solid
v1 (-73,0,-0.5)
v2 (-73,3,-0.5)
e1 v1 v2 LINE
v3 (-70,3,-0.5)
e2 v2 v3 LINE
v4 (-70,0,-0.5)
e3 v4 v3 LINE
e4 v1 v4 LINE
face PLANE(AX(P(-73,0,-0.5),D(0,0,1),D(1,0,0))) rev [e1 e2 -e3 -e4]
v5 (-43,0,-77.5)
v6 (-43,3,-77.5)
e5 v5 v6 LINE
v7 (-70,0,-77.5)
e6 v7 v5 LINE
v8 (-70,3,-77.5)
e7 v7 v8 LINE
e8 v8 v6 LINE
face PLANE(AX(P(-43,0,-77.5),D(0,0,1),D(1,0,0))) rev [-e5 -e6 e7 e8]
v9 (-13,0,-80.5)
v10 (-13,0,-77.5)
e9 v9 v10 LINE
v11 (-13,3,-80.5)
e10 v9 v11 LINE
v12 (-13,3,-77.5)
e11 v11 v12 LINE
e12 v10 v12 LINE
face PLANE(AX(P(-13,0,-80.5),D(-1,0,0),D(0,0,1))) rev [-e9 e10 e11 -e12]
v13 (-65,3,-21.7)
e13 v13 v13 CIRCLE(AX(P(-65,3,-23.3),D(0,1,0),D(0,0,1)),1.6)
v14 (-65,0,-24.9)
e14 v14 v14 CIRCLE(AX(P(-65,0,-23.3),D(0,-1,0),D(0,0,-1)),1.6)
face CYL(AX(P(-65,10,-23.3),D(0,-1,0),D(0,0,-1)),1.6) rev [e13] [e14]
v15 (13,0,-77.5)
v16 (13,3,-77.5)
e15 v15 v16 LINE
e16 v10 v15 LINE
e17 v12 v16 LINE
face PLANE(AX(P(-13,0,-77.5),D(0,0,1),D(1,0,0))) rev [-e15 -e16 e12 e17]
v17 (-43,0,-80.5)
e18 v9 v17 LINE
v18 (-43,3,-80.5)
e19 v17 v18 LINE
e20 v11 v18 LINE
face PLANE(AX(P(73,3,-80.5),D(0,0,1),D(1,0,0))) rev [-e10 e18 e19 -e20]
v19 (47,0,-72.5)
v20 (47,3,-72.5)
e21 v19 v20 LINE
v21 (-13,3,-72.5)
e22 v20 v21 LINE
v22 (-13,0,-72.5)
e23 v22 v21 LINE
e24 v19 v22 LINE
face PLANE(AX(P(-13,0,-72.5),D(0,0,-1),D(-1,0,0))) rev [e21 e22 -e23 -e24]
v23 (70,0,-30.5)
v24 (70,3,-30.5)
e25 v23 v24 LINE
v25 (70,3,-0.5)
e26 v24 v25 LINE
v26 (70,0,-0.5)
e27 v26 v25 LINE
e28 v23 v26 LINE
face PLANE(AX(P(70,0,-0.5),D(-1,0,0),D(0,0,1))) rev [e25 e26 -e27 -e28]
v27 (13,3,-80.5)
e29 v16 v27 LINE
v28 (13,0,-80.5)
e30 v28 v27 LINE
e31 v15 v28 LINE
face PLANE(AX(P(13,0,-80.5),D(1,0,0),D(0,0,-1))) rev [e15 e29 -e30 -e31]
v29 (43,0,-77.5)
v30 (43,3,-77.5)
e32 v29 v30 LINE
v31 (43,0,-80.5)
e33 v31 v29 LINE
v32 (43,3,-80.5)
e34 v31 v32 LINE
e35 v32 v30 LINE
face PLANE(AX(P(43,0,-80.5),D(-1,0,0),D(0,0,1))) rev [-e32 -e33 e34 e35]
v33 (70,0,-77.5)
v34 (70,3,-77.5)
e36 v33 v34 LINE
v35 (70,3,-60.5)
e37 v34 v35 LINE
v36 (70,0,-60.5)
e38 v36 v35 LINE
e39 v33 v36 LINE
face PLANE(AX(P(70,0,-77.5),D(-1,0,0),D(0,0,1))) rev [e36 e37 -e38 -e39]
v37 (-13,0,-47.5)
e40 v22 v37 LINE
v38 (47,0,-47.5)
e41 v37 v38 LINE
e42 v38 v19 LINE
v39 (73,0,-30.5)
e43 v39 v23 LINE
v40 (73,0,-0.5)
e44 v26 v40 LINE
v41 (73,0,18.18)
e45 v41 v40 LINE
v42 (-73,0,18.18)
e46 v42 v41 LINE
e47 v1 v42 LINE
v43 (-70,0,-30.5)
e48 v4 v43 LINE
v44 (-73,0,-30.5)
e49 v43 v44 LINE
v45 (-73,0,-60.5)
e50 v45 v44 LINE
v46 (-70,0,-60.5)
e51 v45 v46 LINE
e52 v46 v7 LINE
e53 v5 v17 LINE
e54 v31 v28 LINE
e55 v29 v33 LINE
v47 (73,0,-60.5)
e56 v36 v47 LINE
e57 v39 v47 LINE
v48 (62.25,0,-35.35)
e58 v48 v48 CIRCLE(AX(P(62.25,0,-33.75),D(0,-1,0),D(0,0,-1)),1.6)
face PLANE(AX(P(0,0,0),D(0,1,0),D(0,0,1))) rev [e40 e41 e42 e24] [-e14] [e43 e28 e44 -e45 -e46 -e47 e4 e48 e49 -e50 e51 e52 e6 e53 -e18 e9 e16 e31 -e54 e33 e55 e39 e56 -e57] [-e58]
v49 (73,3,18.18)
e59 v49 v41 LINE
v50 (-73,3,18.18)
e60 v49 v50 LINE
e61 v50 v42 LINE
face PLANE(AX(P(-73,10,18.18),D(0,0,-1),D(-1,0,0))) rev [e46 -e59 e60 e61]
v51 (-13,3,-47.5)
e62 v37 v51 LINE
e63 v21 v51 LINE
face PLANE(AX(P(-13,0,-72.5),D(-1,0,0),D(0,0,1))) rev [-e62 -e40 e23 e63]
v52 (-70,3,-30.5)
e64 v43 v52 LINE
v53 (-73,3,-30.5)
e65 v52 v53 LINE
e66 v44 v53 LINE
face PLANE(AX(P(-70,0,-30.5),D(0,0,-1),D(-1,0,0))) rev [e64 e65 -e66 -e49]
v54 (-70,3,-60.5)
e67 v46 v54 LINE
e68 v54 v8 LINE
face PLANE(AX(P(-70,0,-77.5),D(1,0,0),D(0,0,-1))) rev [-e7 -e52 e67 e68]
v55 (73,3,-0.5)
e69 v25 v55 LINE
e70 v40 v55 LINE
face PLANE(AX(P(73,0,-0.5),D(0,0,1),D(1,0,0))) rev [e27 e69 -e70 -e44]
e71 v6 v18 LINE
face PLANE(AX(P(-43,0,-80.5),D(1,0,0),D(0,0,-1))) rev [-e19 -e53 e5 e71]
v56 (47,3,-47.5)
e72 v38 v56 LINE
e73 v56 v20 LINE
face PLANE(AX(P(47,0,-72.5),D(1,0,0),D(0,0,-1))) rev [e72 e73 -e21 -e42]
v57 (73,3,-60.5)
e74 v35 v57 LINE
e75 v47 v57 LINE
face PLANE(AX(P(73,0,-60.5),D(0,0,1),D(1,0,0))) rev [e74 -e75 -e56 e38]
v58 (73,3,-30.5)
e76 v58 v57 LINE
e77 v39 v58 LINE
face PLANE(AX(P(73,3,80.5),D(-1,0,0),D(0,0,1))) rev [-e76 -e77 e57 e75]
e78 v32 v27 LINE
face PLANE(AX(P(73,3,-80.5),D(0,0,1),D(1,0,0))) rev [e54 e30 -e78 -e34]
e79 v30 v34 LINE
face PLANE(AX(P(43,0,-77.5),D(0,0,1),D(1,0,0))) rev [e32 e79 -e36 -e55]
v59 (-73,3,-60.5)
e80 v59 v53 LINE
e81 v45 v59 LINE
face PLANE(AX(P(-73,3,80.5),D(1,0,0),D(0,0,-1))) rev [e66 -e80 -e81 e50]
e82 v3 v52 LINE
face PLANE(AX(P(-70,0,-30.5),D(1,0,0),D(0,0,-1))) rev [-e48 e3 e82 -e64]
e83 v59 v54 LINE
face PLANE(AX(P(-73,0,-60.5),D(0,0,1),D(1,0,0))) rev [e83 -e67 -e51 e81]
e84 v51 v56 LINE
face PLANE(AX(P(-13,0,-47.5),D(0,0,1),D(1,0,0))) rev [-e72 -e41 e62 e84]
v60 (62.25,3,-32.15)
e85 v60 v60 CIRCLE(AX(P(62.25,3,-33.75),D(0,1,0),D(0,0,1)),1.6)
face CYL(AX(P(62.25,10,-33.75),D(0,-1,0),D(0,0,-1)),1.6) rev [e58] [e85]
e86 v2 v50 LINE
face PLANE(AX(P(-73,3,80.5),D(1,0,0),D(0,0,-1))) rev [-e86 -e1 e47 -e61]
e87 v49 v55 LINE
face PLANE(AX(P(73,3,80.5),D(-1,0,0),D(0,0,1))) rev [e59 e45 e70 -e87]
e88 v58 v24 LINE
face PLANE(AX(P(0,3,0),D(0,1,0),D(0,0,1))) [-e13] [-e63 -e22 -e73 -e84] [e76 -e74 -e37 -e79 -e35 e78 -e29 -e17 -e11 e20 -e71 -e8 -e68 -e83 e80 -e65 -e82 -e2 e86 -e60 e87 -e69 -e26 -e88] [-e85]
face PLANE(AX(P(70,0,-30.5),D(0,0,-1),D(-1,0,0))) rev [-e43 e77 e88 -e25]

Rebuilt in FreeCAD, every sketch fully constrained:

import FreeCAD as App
import Part
import Sketcher

V = App.Vector


def add_polygon(sketch, points):
    """Adds a closed chain of lines whose ends are joined by coincident constraints."""
    first, n = sketch.GeometryCount, len(points)
    for a, b in zip(points, points[1:] + points[:1]):
        sketch.addGeometry(Part.LineSegment(App.Vector(*a, 0), App.Vector(*b, 0)), False)
    for i in range(n):
        sketch.addConstraint(Sketcher.Constraint("Coincident", first + i, 2, first + (i + 1) % n, 1))

doc = App.newDocument("Part")
body = doc.addObject("PartDesign::Body", "Body")

# Sketch on XZ plane
sketch1 = doc.addObject("Sketcher::SketchObject", "Sketch")
body.addObject(sketch1)
sketch1.AttachmentSupport = (doc.XZ_Plane, [""])
sketch1.MapMode = "FlatFace"
add_polygon(sketch1, [(-73, -80), (-73, 80), (73, 80), (73, -80)])  # lines 0-3
sketch1.addConstraint([
    Sketcher.Constraint("Vertical", 0),
    Sketcher.Constraint("Horizontal", 1),
    Sketcher.Constraint("Vertical", 2),
    Sketcher.Constraint("Horizontal", 3),
    Sketcher.Constraint("Symmetric", 0, 2, 2, 2, -1, 1),
    Sketcher.Constraint("DistanceX", 1, 1, 1, 2, 146.0),
    Sketcher.Constraint("DistanceY", 0, 1, 0, 2, 161.0),
])
pad1 = doc.addObject("PartDesign::Pad", "Pad")
body.addObject(pad1)
pad1.Profile = sketch1
pad1.Length = 3
pad1.Reversed = True

# Sketch on XZ plane
sketch2 = doc.addObject("Sketcher::SketchObject", "Sketch001")
body.addObject(sketch2)
sketch2.AttachmentSupport = (doc.XZ_Plane, [""])
sketch2.MapMode = "FlatFace"
sketch2.AttachmentOffset = App.Placement(V(0, 0, -3), App.Rotation())
add_polygon(sketch2, [(-13, -80.5), (-13, -77.5), (13, -77.5), (13, -80.5)])  # lines 0-3
add_polygon(sketch2, [(-73, -30.5), (-73, -0.5), (-70, -0.5), (-70, -30.5)])  # lines 4-7
add_polygon(sketch2, [(-73, -80.5), (-73, -60.5), (-70, -60.5), (-70, -77.5), (-43, -77.5), (-43, -80.5)])  # lines 8-13
add_polygon(sketch2, [(73, -60.5), (73, -80.5), (43, -80.5), (43, -77.5), (70, -77.5), (70, -60.5)])  # lines 14-19
add_polygon(sketch2, [(70, -30.5), (70, -0.5), (73, -0.5), (73, -30.5)])  # lines 20-23
add_polygon(sketch2, [(-73, 29.5), (-73, 59.5), (-70, 59.5), (-70, 29.5)])  # lines 24-27
add_polygon(sketch2, [(-70, 79.5), (-73, 79.5), (-73, 80.5), (-43, 80.5), (-43, 77.5), (-70, 77.5)])  # lines 28-33
add_polygon(sketch2, [(70, 29.5), (70, 59.5), (73, 59.5), (73, 29.5)])  # lines 34-37
add_polygon(sketch2, [(73, 79.5), (70, 79.5), (70, 77.5), (43, 77.5), (43, 80.5), (73, 80.5)])  # lines 38-43
add_polygon(sketch2, [(-13, 77.5), (-13, 80.5), (13, 80.5), (13, 77.5)])  # lines 44-47
add_polygon(sketch2, [(-13, -72.5), (-13, -47.5), (47, -47.5), (47, -72.5)])  # lines 48-51
sketch2.addConstraint([
    Sketcher.Constraint("Vertical", 0),
    Sketcher.Constraint("Horizontal", 1),
    Sketcher.Constraint("Vertical", 2),
    Sketcher.Constraint("Horizontal", 3),
    Sketcher.Constraint("Vertical", 4),
    Sketcher.Constraint("Horizontal", 5),
    Sketcher.Constraint("Vertical", 6),
    Sketcher.Constraint("Horizontal", 7),
    Sketcher.Constraint("Vertical", 8),
    Sketcher.Constraint("Horizontal", 9),
    Sketcher.Constraint("Vertical", 10),
    Sketcher.Constraint("Horizontal", 11),
    Sketcher.Constraint("Vertical", 12),
    Sketcher.Constraint("Horizontal", 13),
    Sketcher.Constraint("Vertical", 14),
    Sketcher.Constraint("Horizontal", 15),
    Sketcher.Constraint("Vertical", 16),
    Sketcher.Constraint("Horizontal", 17),
    Sketcher.Constraint("Vertical", 18),
    Sketcher.Constraint("Horizontal", 19),
    Sketcher.Constraint("Vertical", 20),
    Sketcher.Constraint("Horizontal", 21),
    Sketcher.Constraint("Vertical", 22),
    Sketcher.Constraint("Horizontal", 23),
    Sketcher.Constraint("Vertical", 24),
    Sketcher.Constraint("Horizontal", 25),
    Sketcher.Constraint("Vertical", 26),
    Sketcher.Constraint("Horizontal", 27),
    Sketcher.Constraint("Horizontal", 28),
    Sketcher.Constraint("Vertical", 29),
    Sketcher.Constraint("Horizontal", 30),
    Sketcher.Constraint("Vertical", 31),
    Sketcher.Constraint("Horizontal", 32),
    Sketcher.Constraint("Vertical", 33),
    Sketcher.Constraint("Vertical", 34),
    Sketcher.Constraint("Horizontal", 35),
    Sketcher.Constraint("Vertical", 36),
    Sketcher.Constraint("Horizontal", 37),
    Sketcher.Constraint("Horizontal", 38),
    Sketcher.Constraint("Vertical", 39),
    Sketcher.Constraint("Horizontal", 40),
    Sketcher.Constraint("Vertical", 41),
    Sketcher.Constraint("Horizontal", 42),
    Sketcher.Constraint("Vertical", 43),
    Sketcher.Constraint("Vertical", 44),
    Sketcher.Constraint("Horizontal", 45),
    Sketcher.Constraint("Vertical", 46),
    Sketcher.Constraint("Horizontal", 47),
    Sketcher.Constraint("Vertical", 48),
    Sketcher.Constraint("Horizontal", 49),
    Sketcher.Constraint("Vertical", 50),
    Sketcher.Constraint("Horizontal", 51),
    Sketcher.Constraint("Symmetric", 14, 2, 29, 2, -1, 1),
    Sketcher.Constraint("Symmetric", 16, 2, 31, 2, -1, 1),
    Sketcher.Constraint("Symmetric", 10, 2, 39, 2, -1, 1),
    Sketcher.Constraint("Symmetric", 12, 2, 41, 2, -1, 1),
    Sketcher.Constraint("Symmetric", 2, 2, 44, 2, -1, 1),
    Sketcher.Constraint("Symmetric", 0, 2, 46, 2, -1, 1),
    Sketcher.Constraint("Symmetric", 13, 2, 14, 2, -2),
    Sketcher.Constraint("Symmetric", 11, 2, 16, 2, -2),
    Sketcher.Constraint("Symmetric", 9, 2, 18, 2, -2),
    Sketcher.Constraint("Symmetric", 5, 2, 20, 2, -2),
    Sketcher.Constraint("Symmetric", 7, 2, 22, 2, -2),
    Sketcher.Constraint("Symmetric", 25, 2, 34, 2, -2),
    Sketcher.Constraint("Symmetric", 27, 2, 36, 2, -2),
    Sketcher.Constraint("Symmetric", 33, 2, 38, 2, -2),
    Sketcher.Constraint("Horizontal", 1, 2, 10, 2),
    Sketcher.Constraint("Horizontal", 3, 2, 12, 2),
    Sketcher.Constraint("Vertical", 7, 2, 8, 2),
    Sketcher.Constraint("Vertical", 6, 2, 9, 2),
    Sketcher.Constraint("Vertical", 13, 2, 24, 2),
    Sketcher.Constraint("Vertical", 10, 2, 25, 2),
    Sketcher.Constraint("Vertical", 36, 2, 42, 2),
    Sketcher.Constraint("Vertical", 3, 2, 44, 2),
    Sketcher.Constraint("Vertical", 47, 2, 48, 2),
    Sketcher.Constraint("Equal", 38, 0),
    Sketcher.Constraint("Equal", 42, 4),
    Sketcher.Constraint("Equal", 22, 24),
    Sketcher.Constraint("DistanceX", 1, 1, 1, 2, 26.0),
    Sketcher.Constraint("DistanceX", 5, 1, 5, 2, 3.0),
    Sketcher.Constraint("DistanceX", 11, 1, 11, 2, 27.0),
    Sketcher.Constraint("DistanceX", 49, 1, 49, 2, 60.0),
    Sketcher.Constraint("DistanceY", 8, 1, 8, 2, 20.0),
    Sketcher.Constraint("DistanceY", 29, 1, 29, 2, 1.0),
    Sketcher.Constraint("DistanceY", 48, 1, 48, 2, 25.0),
    Sketcher.Constraint("DistanceX", 4, 2, -1, 1, 73.0),
    Sketcher.Constraint("DistanceY", 0, 2, 4, 2, 77.0),
    Sketcher.Constraint("DistanceY", 4, 2, 24, 2, 60.0),
    Sketcher.Constraint("DistanceY", 24, 2, 28, 2, 20.0),
    Sketcher.Constraint("DistanceY", 0, 2, 48, 2, 30.0),
])
pocket1 = doc.addObject("PartDesign::Pocket", "Pocket")
body.addObject(pocket1)
pocket1.Profile = sketch2
pocket1.Length = 3
pocket1.Reversed = True

# Sketch on XZ plane
sketch3 = doc.addObject("Sketcher::SketchObject", "Sketch002")
body.addObject(sketch3)
sketch3.AttachmentSupport = (doc.XZ_Plane, [""])
sketch3.MapMode = "FlatFace"
add_polygon(sketch3, [(73, 18), (73, 80), (-73, 80), (-73, 18)])  # lines 0-3
sketch3.addConstraint([
    Sketcher.Constraint("Vertical", 0),
    Sketcher.Constraint("Horizontal", 1),
    Sketcher.Constraint("Vertical", 2),
    Sketcher.Constraint("Horizontal", 3),
    Sketcher.Constraint("DistanceX", 1, 2, 1, 1, 146.0),
    Sketcher.Constraint("DistanceX", -1, 1, 0, 2, 73.0),
    Sketcher.Constraint("DistanceY", 0, 1, 0, 2, 62.32),
    Sketcher.Constraint("DistanceY", -1, 1, 0, 2, 80.5),
])
pocket2 = doc.addObject("PartDesign::Pocket", "Pocket001")
body.addObject(pocket2)
pocket2.Profile = sketch3
pocket2.Length = 10

# Sketch on XZ plane
sketch4 = doc.addObject("Sketcher::SketchObject", "Sketch003")
body.addObject(sketch4)
sketch4.AttachmentSupport = (doc.XZ_Plane, [""])
sketch4.MapMode = "FlatFace"
sketch4.addGeometry([
    Part.Circle(V(62.2, -33.8, 0), V(0, 0, 1), 1.6),
    Part.Circle(V(-65, -23.3, 0), V(0, 0, 1), 1.6),
], False)
sketch4.addConstraint([
    Sketcher.Constraint("Equal", 0, 1),
    Sketcher.Constraint("Diameter", 0, 3.2),
    Sketcher.Constraint("DistanceX", 1, 3, -1, 1, 65.0),
    Sketcher.Constraint("DistanceY", 1, 3, -1, 1, 23.3),
    Sketcher.Constraint("DistanceX", -1, 1, 0, 3, 62.25),
    Sketcher.Constraint("DistanceY", 0, 3, -1, 1, 33.75),
])
pocket3 = doc.addObject("PartDesign::Pocket", "Pocket002")
body.addObject(pocket3)
pocket3.Profile = sketch4
pocket3.Length = 10

doc.recompute()
